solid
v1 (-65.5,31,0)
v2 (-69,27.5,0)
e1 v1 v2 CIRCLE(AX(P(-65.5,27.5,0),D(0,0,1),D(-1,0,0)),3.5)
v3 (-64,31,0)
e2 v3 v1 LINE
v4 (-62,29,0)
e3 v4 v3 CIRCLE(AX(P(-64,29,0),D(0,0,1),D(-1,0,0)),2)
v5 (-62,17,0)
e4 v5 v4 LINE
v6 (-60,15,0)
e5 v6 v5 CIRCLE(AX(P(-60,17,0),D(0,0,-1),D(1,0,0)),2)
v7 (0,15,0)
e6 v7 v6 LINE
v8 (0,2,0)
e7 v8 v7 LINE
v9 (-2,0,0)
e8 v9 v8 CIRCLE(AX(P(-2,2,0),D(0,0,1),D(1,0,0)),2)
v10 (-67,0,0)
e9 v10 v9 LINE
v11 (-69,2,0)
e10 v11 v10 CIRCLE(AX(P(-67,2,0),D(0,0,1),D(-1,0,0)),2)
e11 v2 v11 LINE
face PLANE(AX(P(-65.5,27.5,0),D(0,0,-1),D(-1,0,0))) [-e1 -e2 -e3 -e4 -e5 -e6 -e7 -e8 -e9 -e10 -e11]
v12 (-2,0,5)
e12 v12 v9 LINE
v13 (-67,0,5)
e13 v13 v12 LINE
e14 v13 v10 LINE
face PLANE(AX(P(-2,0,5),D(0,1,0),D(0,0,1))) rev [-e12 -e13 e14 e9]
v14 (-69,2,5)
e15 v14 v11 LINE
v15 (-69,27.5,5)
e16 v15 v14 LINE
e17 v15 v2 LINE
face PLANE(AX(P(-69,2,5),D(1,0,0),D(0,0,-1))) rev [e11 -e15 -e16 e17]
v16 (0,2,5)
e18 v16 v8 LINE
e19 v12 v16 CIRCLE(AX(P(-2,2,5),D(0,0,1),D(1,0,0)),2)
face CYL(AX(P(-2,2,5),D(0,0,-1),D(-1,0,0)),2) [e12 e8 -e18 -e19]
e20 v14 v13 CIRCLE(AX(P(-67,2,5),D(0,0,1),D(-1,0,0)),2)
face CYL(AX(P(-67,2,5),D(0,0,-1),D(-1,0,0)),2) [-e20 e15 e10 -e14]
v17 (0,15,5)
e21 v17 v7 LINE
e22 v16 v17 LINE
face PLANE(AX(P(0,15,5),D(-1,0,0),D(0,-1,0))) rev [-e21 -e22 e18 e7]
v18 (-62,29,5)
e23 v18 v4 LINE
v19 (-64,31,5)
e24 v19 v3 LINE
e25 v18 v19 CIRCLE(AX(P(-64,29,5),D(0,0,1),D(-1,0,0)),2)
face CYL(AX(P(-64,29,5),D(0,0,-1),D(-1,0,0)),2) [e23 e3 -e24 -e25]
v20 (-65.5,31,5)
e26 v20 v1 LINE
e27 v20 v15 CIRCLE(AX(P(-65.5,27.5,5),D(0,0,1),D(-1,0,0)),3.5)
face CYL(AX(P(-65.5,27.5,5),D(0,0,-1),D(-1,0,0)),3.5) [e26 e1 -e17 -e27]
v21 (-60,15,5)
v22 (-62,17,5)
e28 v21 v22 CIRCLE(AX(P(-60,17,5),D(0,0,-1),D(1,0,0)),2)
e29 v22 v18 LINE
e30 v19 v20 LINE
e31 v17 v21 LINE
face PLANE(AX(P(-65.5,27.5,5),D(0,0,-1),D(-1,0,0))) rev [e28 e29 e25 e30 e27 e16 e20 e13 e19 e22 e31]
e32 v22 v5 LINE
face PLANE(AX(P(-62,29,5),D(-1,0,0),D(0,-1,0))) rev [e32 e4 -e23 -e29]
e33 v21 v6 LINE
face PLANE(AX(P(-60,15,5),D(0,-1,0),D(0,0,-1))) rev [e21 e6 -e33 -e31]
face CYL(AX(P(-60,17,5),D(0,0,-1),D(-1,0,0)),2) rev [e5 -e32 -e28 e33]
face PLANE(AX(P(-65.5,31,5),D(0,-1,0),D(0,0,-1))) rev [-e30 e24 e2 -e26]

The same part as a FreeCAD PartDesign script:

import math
import FreeCAD as App
import Part
import Sketcher

V = App.Vector
Q = App.Units.Quantity

doc = App.newDocument("Part")
params = doc.addObject("Spreadsheet::Sheet", "Params")
for row, (alias, value) in enumerate([
    ("sketch1_radius", "2 mm"),
    ("sketch1_radius2", "3.5 mm"),
    ("sketch1_width", "65 mm"),
    ("sketch1_width2", "60 mm"),
    ("sketch1_height", "13 mm"),
    ("pad1_length", "5 mm"),
], start=1):
    params.set(f"A{row}", alias)
    params.set(f"B{row}", "=" + value)
    params.setAlias(f"B{row}", alias)

body = doc.addObject("PartDesign::Body", "Body")

# Sketch on XY plane
sketch1 = body.newObject("Sketcher::SketchObject", "Sketch")
sketch1.AttachmentSupport = (doc.getObject("XY_Plane"), [""])
sketch1.MapMode = "FlatFace"
sketch1.addGeometry([
    Part.LineSegment(V(-67, 0, 0), V(-2, 0, 0)),  # 0
    Part.ArcOfCircle(Part.Circle(V(-2, 2, 0), V(0, 0, 1), 2), math.radians(-90), math.radians(0)),  # 1
    Part.LineSegment(V(0, 2, 0), V(0, 15, 0)),  # 2
    Part.LineSegment(V(0, 15, 0), V(-60, 15, 0)),  # 3
    Part.ArcOfCircle(Part.Circle(V(-60, 17, 0), V(0, 0, 1), 2), math.radians(-180), math.radians(-90)),  # 4
    Part.LineSegment(V(-62, 17, 0), V(-62, 29, 0)),  # 5
    Part.ArcOfCircle(Part.Circle(V(-64, 29, 0), V(0, 0, 1), 2), math.radians(0), math.radians(90)),  # 6
    Part.LineSegment(V(-64, 31, 0), V(-65.5, 31, 0)),  # 7
    Part.ArcOfCircle(Part.Circle(V(-65.5, 27.5, 0), V(0, 0, 1), 3.5), math.radians(90), math.radians(180)),  # 8
    Part.LineSegment(V(-69, 27.5, 0), V(-69, 2, 0)),  # 9
    Part.ArcOfCircle(Part.Circle(V(-67, 2, 0), V(0, 0, 1), 2), math.radians(-180), math.radians(-90)),  # 10
], False)
sketch1.addConstraint([
    Sketcher.Constraint("Tangent", 0, 2, 1, 1),
    Sketcher.Constraint("Tangent", 1, 2, 2, 1),
    Sketcher.Constraint("Coincident", 2, 2, 3, 1),
    Sketcher.Constraint("Tangent", 3, 2, 4, 2),
    Sketcher.Constraint("Tangent", 4, 1, 5, 1),
    Sketcher.Constraint("Tangent", 5, 2, 6, 1),
    Sketcher.Constraint("Tangent", 6, 2, 7, 1),
    Sketcher.Constraint("Tangent", 7, 2, 8, 1),
    Sketcher.Constraint("Tangent", 8, 2, 9, 1),
    Sketcher.Constraint("Tangent", 9, 2, 10, 1),
    Sketcher.Constraint("Tangent", 10, 2, 0, 1),
    Sketcher.Constraint("Horizontal", 0),
    Sketcher.Constraint("Vertical", 2),
    Sketcher.Constraint("Horizontal", 3),
    Sketcher.Constraint("Vertical", 5),
    Sketcher.Constraint("Horizontal", 7),
    Sketcher.Constraint("Vertical", 9),
    Sketcher.Constraint("Equal", 1, 4),
    Sketcher.Constraint("Equal", 4, 6),
    Sketcher.Constraint("Equal", 6, 10),
    Sketcher.Constraint("PointOnObject", 0, 2, -1),
    Sketcher.Constraint("PointOnObject", 1, 2, -2),
    Sketcher.Constraint("Radius", 1, Q("2 mm")),
    Sketcher.Constraint("Radius", 8, Q("3.5 mm")),
    Sketcher.Constraint("DistanceX", 0, 1, 0, 2, Q("65 mm")),
    Sketcher.Constraint("DistanceX", 3, 2, 3, 1, Q("60 mm")),
    Sketcher.Constraint("DistanceY", 2, 1, 2, 2, Q("13 mm")),
    Sketcher.Constraint("DistanceY", 5, 1, 5, 2, Q("12 mm")),
])
sketch1.setExpression("Constraints[22]", "Params.sketch1_radius")
sketch1.setExpression("Constraints[23]", "Params.sketch1_radius2")
sketch1.setExpression("Constraints[24]", "Params.sketch1_width")
sketch1.setExpression("Constraints[25]", "Params.sketch1_width2")
sketch1.setExpression("Constraints[26]", "Params.sketch1_height")
pad1 = body.newObject("PartDesign::Pad", "Pad")
pad1.Profile = sketch1
pad1.setExpression("Length", "Params.pad1_length")

doc.recompute()
